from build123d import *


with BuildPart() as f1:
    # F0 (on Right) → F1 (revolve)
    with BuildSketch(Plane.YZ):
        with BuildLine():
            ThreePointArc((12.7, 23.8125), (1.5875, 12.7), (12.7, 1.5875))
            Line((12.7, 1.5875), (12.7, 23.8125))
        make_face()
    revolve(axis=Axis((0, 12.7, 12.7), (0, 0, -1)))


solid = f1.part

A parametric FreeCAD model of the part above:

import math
import FreeCAD as App
import Part
import Sketcher
from FreeCAD import Vector
Q = App.Units.Quantity

doc = App.newDocument("Part")
body = doc.addObject("PartDesign::Body", "Body")

# Sketch on YZ plane
sketch1 = doc.addObject("Sketcher::SketchObject", "Sketch")
body.addObject(sketch1)
sketch1.AttachmentSupport = (doc.YZ_Plane, [""])
sketch1.MapMode = "FlatFace"
sketch1.addGeometry(Part.ArcOfCircle(Part.Circle(Vector(12.7, 12.7, 0), Vector(0, 0, 1), 11.1125), math.radians(90), math.radians(270)), False)
sketch1.addGeometry(Part.LineSegment(Vector(12.7, 1.5875, 0), Vector(12.7, 23.8125, 0)), False)
sketch1.addGeometry(Part.LineSegment(Vector(12.7, 23.8125, 0), Vector(12.7, 1.5875, 0)), True)  # axis
sketch1.addConstraint(Sketcher.Constraint("Coincident", 0, 1, 1, 2))
sketch1.addConstraint(Sketcher.Constraint("Coincident", 1, 1, 0, 2))
sketch1.addConstraint(Sketcher.Constraint("Vertical", 1))
sketch1.addConstraint(Sketcher.Constraint("Vertical", 2))
sketch1.addConstraint(Sketcher.Constraint("Coincident", 2, 1, 0, 1))
sketch1.addConstraint(Sketcher.Constraint("Equal", 1, 2))
sketch1.addConstraint(Sketcher.Constraint("Radius", 0, Q("0.4375 in")))
sketch1.addConstraint(Sketcher.Constraint("DistanceX", -1, 1, 0, 3, Q("0.5 in")))
sketch1.addConstraint(Sketcher.Constraint("DistanceY", -1, 1, 0, 3, Q("0.5 in")))
sketch1.addConstraint(Sketcher.Constraint("DistanceX", -1, 1, 0, 1, Q("0.5 in")))
revolution = doc.addObject("PartDesign::Revolution", "Revolution")
body.addObject(revolution)
revolution.Profile = sketch1
revolution.ReferenceAxis = (sketch1, ["Axis0"])
revolution.Angle = 360

doc.recompute()
